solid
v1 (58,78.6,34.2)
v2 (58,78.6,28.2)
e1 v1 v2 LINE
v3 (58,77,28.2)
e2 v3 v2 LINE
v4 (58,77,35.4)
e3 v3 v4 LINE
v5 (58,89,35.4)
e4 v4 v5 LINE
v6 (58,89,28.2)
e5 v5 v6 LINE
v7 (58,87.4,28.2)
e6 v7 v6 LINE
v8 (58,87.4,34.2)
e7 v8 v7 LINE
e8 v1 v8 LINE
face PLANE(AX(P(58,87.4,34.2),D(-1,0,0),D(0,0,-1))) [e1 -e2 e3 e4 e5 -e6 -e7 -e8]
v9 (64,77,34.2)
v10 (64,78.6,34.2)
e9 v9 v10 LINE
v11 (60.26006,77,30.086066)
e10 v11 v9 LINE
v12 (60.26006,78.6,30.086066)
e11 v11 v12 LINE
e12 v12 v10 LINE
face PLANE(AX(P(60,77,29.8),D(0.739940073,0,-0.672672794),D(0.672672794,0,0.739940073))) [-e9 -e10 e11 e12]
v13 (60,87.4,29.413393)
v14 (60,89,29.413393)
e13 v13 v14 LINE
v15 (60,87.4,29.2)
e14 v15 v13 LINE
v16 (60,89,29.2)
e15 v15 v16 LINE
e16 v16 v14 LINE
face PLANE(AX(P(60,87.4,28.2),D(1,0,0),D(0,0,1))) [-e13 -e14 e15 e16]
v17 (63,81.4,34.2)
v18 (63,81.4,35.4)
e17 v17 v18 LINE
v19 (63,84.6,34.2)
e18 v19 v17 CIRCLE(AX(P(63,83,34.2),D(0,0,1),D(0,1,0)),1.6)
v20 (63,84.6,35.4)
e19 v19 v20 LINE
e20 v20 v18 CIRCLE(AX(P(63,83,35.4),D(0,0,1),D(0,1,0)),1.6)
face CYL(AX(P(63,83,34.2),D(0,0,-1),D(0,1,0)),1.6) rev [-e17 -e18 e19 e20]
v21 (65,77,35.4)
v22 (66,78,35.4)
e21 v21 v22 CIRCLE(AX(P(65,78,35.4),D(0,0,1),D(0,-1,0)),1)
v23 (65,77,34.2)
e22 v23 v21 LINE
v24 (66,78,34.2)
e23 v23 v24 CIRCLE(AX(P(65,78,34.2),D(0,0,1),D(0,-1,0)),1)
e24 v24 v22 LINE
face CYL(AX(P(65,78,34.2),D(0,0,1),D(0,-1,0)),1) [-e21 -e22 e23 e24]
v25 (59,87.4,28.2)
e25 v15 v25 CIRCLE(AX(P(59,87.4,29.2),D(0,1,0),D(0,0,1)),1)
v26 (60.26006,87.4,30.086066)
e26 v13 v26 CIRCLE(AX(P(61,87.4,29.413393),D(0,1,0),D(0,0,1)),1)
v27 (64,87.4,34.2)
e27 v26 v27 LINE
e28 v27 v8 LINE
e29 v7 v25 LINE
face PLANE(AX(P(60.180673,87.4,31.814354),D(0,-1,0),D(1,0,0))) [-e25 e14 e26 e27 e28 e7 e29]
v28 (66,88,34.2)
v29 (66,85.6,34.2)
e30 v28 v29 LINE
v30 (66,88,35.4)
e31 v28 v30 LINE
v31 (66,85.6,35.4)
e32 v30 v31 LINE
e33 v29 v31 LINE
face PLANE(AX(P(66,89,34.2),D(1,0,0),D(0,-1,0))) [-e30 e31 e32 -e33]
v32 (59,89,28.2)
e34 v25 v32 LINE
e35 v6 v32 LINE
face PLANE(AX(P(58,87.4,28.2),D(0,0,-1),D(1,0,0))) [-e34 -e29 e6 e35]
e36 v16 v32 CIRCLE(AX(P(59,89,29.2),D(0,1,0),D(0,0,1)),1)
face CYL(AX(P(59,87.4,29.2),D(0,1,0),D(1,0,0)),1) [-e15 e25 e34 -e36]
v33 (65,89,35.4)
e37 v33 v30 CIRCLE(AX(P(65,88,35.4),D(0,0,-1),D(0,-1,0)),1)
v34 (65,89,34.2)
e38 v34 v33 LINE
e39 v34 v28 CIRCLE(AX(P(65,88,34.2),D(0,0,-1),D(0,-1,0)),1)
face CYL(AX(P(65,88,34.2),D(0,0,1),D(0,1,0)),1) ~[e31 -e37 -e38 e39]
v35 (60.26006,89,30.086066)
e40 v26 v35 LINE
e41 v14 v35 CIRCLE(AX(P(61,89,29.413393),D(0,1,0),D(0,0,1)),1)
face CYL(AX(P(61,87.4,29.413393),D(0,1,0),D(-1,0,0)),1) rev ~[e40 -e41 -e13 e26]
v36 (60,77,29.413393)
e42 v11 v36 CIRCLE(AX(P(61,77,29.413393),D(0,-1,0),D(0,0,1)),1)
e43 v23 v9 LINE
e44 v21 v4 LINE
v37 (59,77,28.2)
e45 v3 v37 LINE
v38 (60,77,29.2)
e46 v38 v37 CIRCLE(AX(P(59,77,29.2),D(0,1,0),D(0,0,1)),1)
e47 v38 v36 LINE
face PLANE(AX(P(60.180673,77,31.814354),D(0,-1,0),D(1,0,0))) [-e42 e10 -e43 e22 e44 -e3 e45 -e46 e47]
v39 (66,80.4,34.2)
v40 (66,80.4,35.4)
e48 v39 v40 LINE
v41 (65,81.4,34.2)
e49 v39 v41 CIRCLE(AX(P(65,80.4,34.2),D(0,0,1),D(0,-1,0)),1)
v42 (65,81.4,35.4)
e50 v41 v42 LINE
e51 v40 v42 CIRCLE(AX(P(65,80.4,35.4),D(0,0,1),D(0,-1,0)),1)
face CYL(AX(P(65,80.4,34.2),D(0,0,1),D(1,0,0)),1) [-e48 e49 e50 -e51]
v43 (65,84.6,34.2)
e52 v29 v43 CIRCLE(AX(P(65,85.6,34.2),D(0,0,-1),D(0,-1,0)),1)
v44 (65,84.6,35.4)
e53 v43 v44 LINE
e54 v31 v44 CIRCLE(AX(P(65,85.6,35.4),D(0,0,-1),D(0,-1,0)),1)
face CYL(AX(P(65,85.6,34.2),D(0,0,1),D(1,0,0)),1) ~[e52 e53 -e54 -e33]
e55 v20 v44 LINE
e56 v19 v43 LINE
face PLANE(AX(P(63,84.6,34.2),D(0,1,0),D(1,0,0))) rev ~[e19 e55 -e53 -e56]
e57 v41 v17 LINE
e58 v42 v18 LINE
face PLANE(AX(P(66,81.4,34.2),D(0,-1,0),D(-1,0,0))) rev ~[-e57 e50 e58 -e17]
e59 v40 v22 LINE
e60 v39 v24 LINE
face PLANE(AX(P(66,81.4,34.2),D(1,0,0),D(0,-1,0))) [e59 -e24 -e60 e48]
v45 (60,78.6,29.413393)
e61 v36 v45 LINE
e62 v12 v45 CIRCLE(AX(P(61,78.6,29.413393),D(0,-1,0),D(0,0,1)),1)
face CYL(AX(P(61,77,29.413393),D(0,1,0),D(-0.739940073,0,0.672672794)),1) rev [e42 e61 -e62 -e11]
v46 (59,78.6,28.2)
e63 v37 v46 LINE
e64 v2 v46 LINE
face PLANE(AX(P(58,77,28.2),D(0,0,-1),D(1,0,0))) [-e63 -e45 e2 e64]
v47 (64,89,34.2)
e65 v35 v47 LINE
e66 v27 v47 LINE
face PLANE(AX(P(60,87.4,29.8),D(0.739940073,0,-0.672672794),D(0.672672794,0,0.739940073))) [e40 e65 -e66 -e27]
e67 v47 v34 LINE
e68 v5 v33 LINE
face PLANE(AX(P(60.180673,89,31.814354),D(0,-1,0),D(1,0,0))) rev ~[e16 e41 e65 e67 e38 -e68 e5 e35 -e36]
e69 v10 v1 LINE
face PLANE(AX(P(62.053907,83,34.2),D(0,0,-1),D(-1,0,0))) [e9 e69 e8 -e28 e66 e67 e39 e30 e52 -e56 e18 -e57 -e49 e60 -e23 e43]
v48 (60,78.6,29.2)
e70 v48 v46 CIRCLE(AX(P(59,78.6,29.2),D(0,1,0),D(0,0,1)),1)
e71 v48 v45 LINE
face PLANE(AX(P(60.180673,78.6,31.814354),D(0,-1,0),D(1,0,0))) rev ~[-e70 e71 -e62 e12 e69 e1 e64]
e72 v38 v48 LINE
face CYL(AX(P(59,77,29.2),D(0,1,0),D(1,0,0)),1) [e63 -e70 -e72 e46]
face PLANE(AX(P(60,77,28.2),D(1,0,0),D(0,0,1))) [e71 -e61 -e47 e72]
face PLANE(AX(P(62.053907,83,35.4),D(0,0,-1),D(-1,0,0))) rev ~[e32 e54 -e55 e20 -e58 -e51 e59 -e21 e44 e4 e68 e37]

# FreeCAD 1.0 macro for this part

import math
import FreeCAD as App
import Part
import Sketcher

V = App.Vector
Q = App.Units.Quantity


def edges_at(feature, points):
    """Names of the edges that pass closest to the given points."""
    edges = feature.Shape.Edges
    near = lambda p: min(range(len(edges)), key=lambda i: edges[i].distToShape(Part.Vertex(*p))[0])
    return sorted({f"Edge{near(p) + 1}" for p in points})

doc = App.newDocument("Part")
params = doc.addObject("Spreadsheet::Sheet", "Params")
for row, (alias, value) in enumerate([
    ("sketch1_radius", "1.6 mm"),
    ("sketch1_width", "8 mm"),
    ("sketch1_width2", "3 mm"),
    ("sketch1_height", "12 mm"),
    ("pad1_length", "1.2 mm"),
    ("sketch2_width", "2 mm"),
    ("sketch2_width2", "6 mm"),
    ("sketch2_height", "1.6 mm"),
    ("pad2_length", "1.6 mm"),
    ("linearpattern_pitch", "10.4 mm"),
    ("fillet_radius", "1 mm"),
    ("fillet2_radius", "1 mm"),
    ("fillet3_radius", "1 mm"),
], start=1):
    params.set(f"A{row}", alias)
    params.set(f"B{row}", "=" + value)
    params.setAlias(f"B{row}", alias)

body = doc.addObject("PartDesign::Body", "Body")

# Sketch on XY plane
sketch1 = body.newObject("Sketcher::SketchObject", "Sketch")
sketch1.AttachmentSupport = (doc.getObject("XY_Plane"), [""])
sketch1.MapMode = "FlatFace"
sketch1.addGeometry([
    Part.LineSegment(V(4, 6, 0), V(-4, 6, 0)),  # 0
    Part.LineSegment(V(-4, 6, 0), V(-4, -6, 0)),  # 1
    Part.LineSegment(V(-4, -6, 0), V(4, -6, 0)),  # 2
    Part.LineSegment(V(4, -6, 0), V(4, -1.6, 0)),  # 3
    Part.LineSegment(V(4, -1.6, 0), V(1, -1.6, 0)),  # 4
    Part.ArcOfCircle(Part.Circle(V(1, 0, 0), V(0, 0, 1), 1.6), math.radians(90), math.radians(270)),  # 5
    Part.LineSegment(V(1, 1.6, 0), V(4, 1.6, 0)),  # 6
    Part.LineSegment(V(4, 1.6, 0), V(4, 6, 0)),  # 7
], False)
sketch1.addConstraint([
    Sketcher.Constraint("Coincident", 0, 2, 1, 1),
    Sketcher.Constraint("Coincident", 1, 2, 2, 1),
    Sketcher.Constraint("Coincident", 2, 2, 3, 1),
    Sketcher.Constraint("Coincident", 3, 2, 4, 1),
    Sketcher.Constraint("Tangent", 4, 2, 5, 2),
    Sketcher.Constraint("Tangent", 5, 1, 6, 1),
    Sketcher.Constraint("Coincident", 6, 2, 7, 1),
    Sketcher.Constraint("Coincident", 7, 2, 0, 1),
    Sketcher.Constraint("Horizontal", 0),
    Sketcher.Constraint("Vertical", 1),
    Sketcher.Constraint("Horizontal", 2),
    Sketcher.Constraint("Vertical", 3),
    Sketcher.Constraint("Horizontal", 4),
    Sketcher.Constraint("Horizontal", 6),
    Sketcher.Constraint("Vertical", 7),
    Sketcher.Constraint("Symmetric", 0, 2, 2, 2, -1, 1),
    Sketcher.Constraint("Symmetric", 3, 2, 6, 2, -1),
    Sketcher.Constraint("Radius", 5, Q("1.6 mm")),
    Sketcher.Constraint("DistanceX", 0, 2, 0, 1, Q("8 mm")),
    Sketcher.Constraint("DistanceX", 4, 2, 4, 1, Q("3 mm")),
    Sketcher.Constraint("DistanceY", 1, 2, 1, 1, Q("12 mm")),
])
sketch1.setExpression("Constraints[17]", "Params.sketch1_radius")
sketch1.setExpression("Constraints[18]", "Params.sketch1_width")
sketch1.setExpression("Constraints[19]", "Params.sketch1_width2")
sketch1.setExpression("Constraints[20]", "Params.sketch1_height")
pad1 = body.newObject("PartDesign::Pad", "Pad")
pad1.Profile = sketch1
pad1.setExpression("Length", "Params.pad1_length")

# Sketch on XZ plane
sketch2 = body.newObject("Sketcher::SketchObject", "Sketch001")
sketch2.AttachmentSupport = (doc.getObject("XZ_Plane"), [""])
sketch2.MapMode = "FlatFace"
sketch2.AttachmentOffset = App.Placement(V(0, 0, 6), App.Rotation())
sketch2.addGeometry([
    Part.LineSegment(V(-4, 0, 0), V(-4, -6, 0)),  # 0
    Part.LineSegment(V(-4, -6, 0), V(-2, -6, 0)),  # 1
    Part.LineSegment(V(-2, -6, 0), V(-2, -4.4, 0)),  # 2
    Part.LineSegment(V(-2, -4.4, 0), V(2, 0, 0)),  # 3
    Part.LineSegment(V(2, 0, 0), V(-4, 0, 0)),  # 4
], False)
sketch2.addConstraint([
    Sketcher.Constraint("Coincident", 0, 2, 1, 1),
    Sketcher.Constraint("Coincident", 1, 2, 2, 1),
    Sketcher.Constraint("Coincident", 2, 2, 3, 1),
    Sketcher.Constraint("Coincident", 3, 2, 4, 1),
    Sketcher.Constraint("Coincident", 4, 2, 0, 1),
    Sketcher.Constraint("Vertical", 0),
    Sketcher.Constraint("Horizontal", 1),
    Sketcher.Constraint("Vertical", 2),
    Sketcher.Constraint("Horizontal", 4),
    Sketcher.Constraint("PointOnObject", 3, 2, -1),
    Sketcher.Constraint("Equal", 4, 0),
    Sketcher.Constraint("DistanceX", 1, 1, 1, 2, Q("2 mm")),
    Sketcher.Constraint("DistanceX", 4, 2, 4, 1, Q("6 mm")),
    Sketcher.Constraint("DistanceY", 2, 1, 2, 2, Q("1.6 mm")),
    Sketcher.Constraint("DistanceX", 0, 2, -1, 1, Q("4 mm")),
])
sketch2.setExpression("Constraints[11]", "Params.sketch2_width")
sketch2.setExpression("Constraints[12]", "Params.sketch2_width2")
sketch2.setExpression("Constraints[13]", "Params.sketch2_height")
pad2 = body.newObject("PartDesign::Pad", "Pad001")
pad2.Profile = sketch2
pad2.setExpression("Length", "Params.pad2_length")
pad2.Reversed = True
doc.recompute()

linearpattern = body.newObject("PartDesign::LinearPattern", "LinearPattern")
linearpattern.Originals = [pad2]
linearpattern.Direction = (doc.getObject("Y_Axis"), [""])
linearpattern.Mode = "offset"
linearpattern.setExpression("Offset", "Params.linearpattern_pitch")
linearpattern.Occurrences = 2
body.Tip = linearpattern
doc.recompute()

fillet = body.newObject("PartDesign::Fillet", "Fillet")
fillet.Base = (linearpattern, edges_at(linearpattern, [(-2, -5.2, -6), (-2, 5.2, -6)]))
fillet.setExpression("Radius", "Params.fillet_radius")
doc.recompute()

fillet2 = body.newObject("PartDesign::Fillet", "Fillet001")
fillet2.Base = (fillet, edges_at(fillet, [(-2, -5.2, -4.4), (-2, 5.2, -4.4)]))
fillet2.setExpression("Radius", "Params.fillet2_radius")
doc.recompute()

fillet3 = body.newObject("PartDesign::Fillet", "Fillet002")
fillet3.Base = (fillet2, edges_at(fillet2, [
    (4, -6, 0.6),
    (4, -1.6, 0.6),
    (4, 1.6, 0.6),
    (4, 6, 0.6),
]))
fillet3.setExpression("Radius", "Params.fillet3_radius")
body2 = doc.addObject("PartDesign::Body", "Body001")
doc.recompute()

body.Placement = App.Placement(V(62, 83, 34.2), App.Rotation(V(0, 0, 1), 0))
boolean = body2.newObject("PartDesign::Boolean", "Boolean")
boolean.Type = "Fuse"
boolean.addObjects([body])

doc.recompute()
